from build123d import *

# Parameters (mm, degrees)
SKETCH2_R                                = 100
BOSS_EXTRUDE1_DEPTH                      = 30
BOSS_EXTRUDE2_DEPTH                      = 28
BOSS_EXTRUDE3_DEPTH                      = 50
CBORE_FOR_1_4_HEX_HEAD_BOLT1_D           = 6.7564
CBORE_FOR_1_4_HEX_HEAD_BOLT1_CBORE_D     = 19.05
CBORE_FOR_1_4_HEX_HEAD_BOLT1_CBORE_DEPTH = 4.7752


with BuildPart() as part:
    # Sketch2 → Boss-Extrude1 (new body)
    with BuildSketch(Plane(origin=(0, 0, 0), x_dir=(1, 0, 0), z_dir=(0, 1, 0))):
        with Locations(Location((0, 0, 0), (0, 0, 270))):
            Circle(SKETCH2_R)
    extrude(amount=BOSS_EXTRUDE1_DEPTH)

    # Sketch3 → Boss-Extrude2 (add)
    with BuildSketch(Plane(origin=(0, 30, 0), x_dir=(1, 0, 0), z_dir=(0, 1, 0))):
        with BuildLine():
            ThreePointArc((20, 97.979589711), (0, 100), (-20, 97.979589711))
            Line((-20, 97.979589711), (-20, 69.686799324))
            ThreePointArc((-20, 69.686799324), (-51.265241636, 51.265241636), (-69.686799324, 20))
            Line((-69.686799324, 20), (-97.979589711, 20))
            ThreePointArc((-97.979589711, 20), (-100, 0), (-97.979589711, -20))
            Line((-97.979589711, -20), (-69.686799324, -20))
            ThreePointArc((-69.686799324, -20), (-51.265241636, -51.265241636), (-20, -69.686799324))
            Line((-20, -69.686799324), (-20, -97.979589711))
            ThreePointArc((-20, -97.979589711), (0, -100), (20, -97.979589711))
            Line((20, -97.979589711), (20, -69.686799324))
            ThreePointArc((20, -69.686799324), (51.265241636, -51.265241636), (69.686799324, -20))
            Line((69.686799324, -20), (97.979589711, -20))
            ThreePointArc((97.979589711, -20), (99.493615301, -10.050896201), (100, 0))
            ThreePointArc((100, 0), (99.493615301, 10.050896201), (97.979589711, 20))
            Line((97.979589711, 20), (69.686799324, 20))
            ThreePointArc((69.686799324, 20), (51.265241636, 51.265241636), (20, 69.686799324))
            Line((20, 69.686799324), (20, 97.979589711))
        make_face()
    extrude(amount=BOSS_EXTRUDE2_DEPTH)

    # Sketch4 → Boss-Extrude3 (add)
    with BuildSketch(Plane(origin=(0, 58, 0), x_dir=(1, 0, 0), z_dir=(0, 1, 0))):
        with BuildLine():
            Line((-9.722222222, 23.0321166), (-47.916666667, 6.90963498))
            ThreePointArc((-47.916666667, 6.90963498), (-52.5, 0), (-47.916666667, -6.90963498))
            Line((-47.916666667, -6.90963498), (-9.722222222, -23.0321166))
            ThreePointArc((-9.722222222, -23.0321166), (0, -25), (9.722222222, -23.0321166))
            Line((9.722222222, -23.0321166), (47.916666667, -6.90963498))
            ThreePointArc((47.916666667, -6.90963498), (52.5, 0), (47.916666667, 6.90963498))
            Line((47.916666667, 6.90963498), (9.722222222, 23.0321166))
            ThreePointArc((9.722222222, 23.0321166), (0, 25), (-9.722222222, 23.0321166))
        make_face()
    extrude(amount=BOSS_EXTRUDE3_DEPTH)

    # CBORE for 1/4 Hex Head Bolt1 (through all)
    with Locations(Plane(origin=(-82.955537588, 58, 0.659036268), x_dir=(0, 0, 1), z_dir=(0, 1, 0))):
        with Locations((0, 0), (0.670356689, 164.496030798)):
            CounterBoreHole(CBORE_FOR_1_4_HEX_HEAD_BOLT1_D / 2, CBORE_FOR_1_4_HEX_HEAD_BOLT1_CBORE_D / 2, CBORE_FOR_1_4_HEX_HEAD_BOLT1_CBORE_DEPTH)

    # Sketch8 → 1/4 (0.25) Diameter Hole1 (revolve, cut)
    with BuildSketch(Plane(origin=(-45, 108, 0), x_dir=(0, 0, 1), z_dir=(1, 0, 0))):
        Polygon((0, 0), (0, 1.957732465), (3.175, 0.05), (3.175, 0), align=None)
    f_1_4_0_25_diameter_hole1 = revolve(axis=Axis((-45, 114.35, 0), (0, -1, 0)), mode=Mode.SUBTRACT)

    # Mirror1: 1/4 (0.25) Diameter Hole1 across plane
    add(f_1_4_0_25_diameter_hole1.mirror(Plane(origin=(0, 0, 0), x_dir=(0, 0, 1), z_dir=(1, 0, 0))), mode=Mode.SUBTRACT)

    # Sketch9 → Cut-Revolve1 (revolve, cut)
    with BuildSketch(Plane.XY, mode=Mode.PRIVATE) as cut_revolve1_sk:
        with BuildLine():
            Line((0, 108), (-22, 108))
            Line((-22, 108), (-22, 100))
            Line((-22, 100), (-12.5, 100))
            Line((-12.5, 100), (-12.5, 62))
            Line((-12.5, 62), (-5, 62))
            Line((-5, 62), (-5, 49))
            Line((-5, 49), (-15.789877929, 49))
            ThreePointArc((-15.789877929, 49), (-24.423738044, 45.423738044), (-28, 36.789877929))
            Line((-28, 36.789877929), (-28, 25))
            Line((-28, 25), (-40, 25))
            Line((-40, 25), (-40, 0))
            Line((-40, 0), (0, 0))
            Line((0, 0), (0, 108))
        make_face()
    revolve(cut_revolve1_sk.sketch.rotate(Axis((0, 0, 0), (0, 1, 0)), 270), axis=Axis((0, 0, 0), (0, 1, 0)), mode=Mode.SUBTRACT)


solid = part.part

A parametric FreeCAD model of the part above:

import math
import FreeCAD as App
import Part
import Sketcher
from FreeCAD import Vector
Q = App.Units.Quantity


def add_polygon(sketch, points):
    """Adds a closed chain of lines whose ends are joined by coincident constraints."""
    first, n = sketch.GeometryCount, len(points)
    for a, b in zip(points, points[1:] + points[:1]):
        sketch.addGeometry(Part.LineSegment(App.Vector(*a, 0), App.Vector(*b, 0)), False)
    for i in range(n):
        sketch.addConstraint(Sketcher.Constraint("Coincident", first + i, 2, first + (i + 1) % n, 1))

doc = App.newDocument("Part")
body = doc.addObject("PartDesign::Body", "Body")

sketch1 = doc.addObject("Sketcher::SketchObject", "Sketch")
body.addObject(sketch1)
sketch1.AttachmentSupport = (doc.XZ_Plane, [""])
sketch1.MapMode = "FlatFace"
sketch1.addGeometry(Part.Circle(Vector(0, 0, 0), Vector(0, 0, 1), 100), False)
sketch1.addConstraint([
    Sketcher.Constraint("Coincident", 0, 3, -1, 1),
    Sketcher.Constraint("Diameter", 0, 200.0),
])
pad1 = doc.addObject("PartDesign::Pad", "Pad")
body.addObject(pad1)
pad1.Profile = sketch1
pad1.Length = 30
pad1.Reversed = True

sketch2 = doc.addObject("Sketcher::SketchObject", "Sketch001")
body.addObject(sketch2)
sketch2.AttachmentSupport = (doc.XZ_Plane, [""])
sketch2.MapMode = "FlatFace"
sketch2.AttachmentOffset = App.Placement(Vector(0, 0, -30), App.Rotation())
sketch2.addGeometry([
    Part.ArcOfCircle(Part.Circle(Vector(0, 0, 0), Vector(0, 0, 1), 100), math.radians(-102), math.radians(-78)),
    Part.LineSegment(Vector(-20, -98, 0), Vector(-20, -70, 0)),
    Part.ArcOfCircle(Part.Circle(Vector(0, 0, 0), Vector(0, 0, 1), 73), math.radians(-164), math.radians(-106)),
    Part.LineSegment(Vector(-70, -20, 0), Vector(-98, -20, 0)),
    Part.ArcOfCircle(Part.Circle(Vector(0, 0, 0), Vector(0, 0, 1), 100), math.radians(168), math.radians(192)),
    Part.LineSegment(Vector(-98, 20, 0), Vector(-70, 20, 0)),
    Part.ArcOfCircle(Part.Circle(Vector(0, 0, 0), Vector(0, 0, 1), 73), math.radians(106), math.radians(164)),
    Part.LineSegment(Vector(-20, 70, 0), Vector(-20, 98, 0)),
    Part.ArcOfCircle(Part.Circle(Vector(0, 0, 0), Vector(0, 0, 1), 100), math.radians(78), math.radians(102)),
    Part.LineSegment(Vector(20, 98, 0), Vector(20, 70, 0)),
    Part.ArcOfCircle(Part.Circle(Vector(0, 0, 0), Vector(0, 0, 1), 73), math.radians(16), math.radians(74)),
    Part.LineSegment(Vector(70, 20, 0), Vector(98, 20, 0)),
    Part.ArcOfCircle(Part.Circle(Vector(0, 0, 0), Vector(0, 0, 1), 100), math.radians(0), math.radians(11.54)),
    Part.ArcOfCircle(Part.Circle(Vector(0, 0, 0), Vector(0, 0, 1), 100), math.radians(-11.54), math.radians(0)),
    Part.LineSegment(Vector(98, -20, 0), Vector(70, -20, 0)),
    Part.ArcOfCircle(Part.Circle(Vector(0, 0, 0), Vector(0, 0, 1), 73), math.radians(-74), math.radians(-16)),
    Part.LineSegment(Vector(20, -70, 0), Vector(20, -98, 0)),
], False)
sketch2.addConstraint([
    Sketcher.Constraint("Coincident", 0, 1, 1, 1),
    Sketcher.Constraint("Coincident", 1, 2, 2, 2),
    Sketcher.Constraint("Coincident", 2, 1, 3, 1),
    Sketcher.Constraint("Coincident", 3, 2, 4, 2),
    Sketcher.Constraint("Coincident", 4, 1, 5, 1),
    Sketcher.Constraint("Coincident", 5, 2, 6, 2),
    Sketcher.Constraint("Coincident", 6, 1, 7, 1),
    Sketcher.Constraint("Coincident", 7, 2, 8, 2),
    Sketcher.Constraint("Coincident", 8, 1, 9, 1),
    Sketcher.Constraint("Coincident", 9, 2, 10, 2),
    Sketcher.Constraint("Coincident", 10, 1, 11, 1),
    Sketcher.Constraint("Coincident", 11, 2, 12, 2),
    Sketcher.Constraint("Tangent", 12, 1, 13, 2),
    Sketcher.Constraint("Coincident", 13, 1, 14, 1),
    Sketcher.Constraint("Coincident", 14, 2, 15, 2),
    Sketcher.Constraint("Coincident", 15, 1, 16, 1),
    Sketcher.Constraint("Coincident", 16, 2, 0, 2),
    Sketcher.Constraint("Vertical", 1),
    Sketcher.Constraint("Horizontal", 3),
    Sketcher.Constraint("Horizontal", 5),
    Sketcher.Constraint("Vertical", 7),
    Sketcher.Constraint("Vertical", 9),
    Sketcher.Constraint("Horizontal", 11),
    Sketcher.Constraint("Horizontal", 14),
    Sketcher.Constraint("Vertical", 16),
    Sketcher.Constraint("Coincident", 0, 3, -1, 1),
    Sketcher.Constraint("Coincident", 2, 3, -1, 1),
    Sketcher.Constraint("Coincident", 4, 3, -1, 1),
    Sketcher.Constraint("Coincident", 6, 3, -1, 1),
    Sketcher.Constraint("Coincident", 8, 3, -1, 1),
    Sketcher.Constraint("Coincident", 10, 3, -1, 1),
    Sketcher.Constraint("Coincident", 12, 3, -1, 1),
    Sketcher.Constraint("Coincident", 15, 3, -1, 1),
    Sketcher.Constraint("Equal", 0, 4),
    Sketcher.Constraint("Equal", 2, 6),
    Sketcher.Constraint("Equal", 4, 8),
    Sketcher.Constraint("Equal", 6, 10),
    Sketcher.Constraint("Equal", 8, 12),
    Sketcher.Constraint("Equal", 12, 13),
    Sketcher.Constraint("Equal", 10, 15),
    Sketcher.Constraint("PointOnObject", 12, 1, -1),
    Sketcher.Constraint("Horizontal", 7, 2, 8, 1),
    Sketcher.Constraint("Horizontal", 5, 2, 10, 1),
    Sketcher.Constraint("Horizontal", 3, 2, 13, 1),
    Sketcher.Constraint("Horizontal", 1, 2, 15, 1),
    Sketcher.Constraint("Vertical", 3, 2, 4, 1),
    Sketcher.Constraint("Vertical", 1, 2, 6, 1),
    Sketcher.Constraint("Equal", 14, 1),
    Sketcher.Constraint("Radius", 0, 100.0),
    Sketcher.Constraint("Radius", 2, 72.5),
    Sketcher.Constraint("DistanceX", 0, 1, -1, 1, 20.0),
])
pad2 = doc.addObject("PartDesign::Pad", "Pad001")
body.addObject(pad2)
pad2.Profile = sketch2
pad2.Length = 28
pad2.Reversed = True

sketch3 = doc.addObject("Sketcher::SketchObject", "Sketch002")
body.addObject(sketch3)
sketch3.AttachmentSupport = (doc.XZ_Plane, [""])
sketch3.MapMode = "FlatFace"
sketch3.AttachmentOffset = App.Placement(Vector(0, 0, -58), App.Rotation())
sketch3.addGeometry([
    Part.LineSegment(Vector(-10, -23, 0), Vector(-48, -7, 0)),
    Part.ArcOfCircle(Part.Circle(Vector(-45, 0, 0), Vector(0, 0, 1), 8), math.radians(113), math.radians(247)),
    Part.LineSegment(Vector(-48, 7, 0), Vector(-10, 23, 0)),
    Part.ArcOfCircle(Part.Circle(Vector(0, 0, 0), Vector(0, 0, 1), 25), math.radians(67), math.radians(113)),
    Part.LineSegment(Vector(10, 23, 0), Vector(48, 7, 0)),
    Part.ArcOfCircle(Part.Circle(Vector(45, 0, 0), Vector(0, 0, 1), 8), math.radians(-67), math.radians(67)),
    Part.LineSegment(Vector(48, -7, 0), Vector(10, -23, 0)),
    Part.ArcOfCircle(Part.Circle(Vector(0, 0, 0), Vector(0, 0, 1), 25), math.radians(-113), math.radians(-67)),
], False)
sketch3.addConstraint([
    Sketcher.Constraint("Tangent", 0, 2, 1, 2),
    Sketcher.Constraint("Tangent", 1, 1, 2, 1),
    Sketcher.Constraint("Tangent", 2, 2, 3, 2),
    Sketcher.Constraint("Tangent", 3, 1, 4, 1),
    Sketcher.Constraint("Tangent", 4, 2, 5, 2),
    Sketcher.Constraint("Tangent", 5, 1, 6, 1),
    Sketcher.Constraint("Tangent", 6, 2, 7, 2),
    Sketcher.Constraint("Tangent", 7, 1, 0, 1),
    Sketcher.Constraint("Coincident", 3, 3, -1, 1),
    Sketcher.Constraint("Coincident", 7, 3, -1, 1),
    Sketcher.Constraint("Equal", 1, 5),
    Sketcher.Constraint("Equal", 3, 7),
    Sketcher.Constraint("Symmetric", 1, 3, 5, 3, -1, 1),
    Sketcher.Constraint("PointOnObject", 1, 3, -1),
    Sketcher.Constraint("Radius", 3, 25.0),
    Sketcher.Constraint("Radius", 1, 7.5),
    Sketcher.Constraint("DistanceX", 1, 3, -1, 1, 45.0),
])
pad3 = doc.addObject("PartDesign::Pad", "Pad002")
body.addObject(pad3)
pad3.Profile = sketch3
pad3.Length = 50
pad3.Reversed = True

sketch4 = doc.addObject("Sketcher::SketchObject", "Sketch003")
body.addObject(sketch4)
sketch4.AttachmentSupport = (doc.XZ_Plane, [""])
sketch4.MapMode = "FlatFace"
sketch4.AttachmentOffset = App.Placement(Vector(0, 0, -58), App.Rotation())
sketch4.addGeometry([
    Part.Circle(Vector(-83, 0.7, 0), Vector(0, 0, 1), 3.4),
    Part.Circle(Vector(81.5, 1.3, 0), Vector(0, 0, 1), 3.4),
], False)
sketch4.addConstraint([
    Sketcher.Constraint("Equal", 0, 1),
    Sketcher.Constraint("Diameter", 0, 6.7564),
    Sketcher.Constraint("DistanceX", 0, 3, 1, 3, 164.496031),
    Sketcher.Constraint("DistanceX", 0, 3, -1, 1, 82.955538),
    Sketcher.Constraint("DistanceY", -1, 1, 0, 3, 0.659036),
    Sketcher.Constraint("DistanceY", -1, 1, 1, 3, 1.329393),
])
doc.recompute()
hole = doc.addObject("PartDesign::Hole", "Hole")
body.addObject(hole)
hole.Profile = sketch4
hole.ThreadType = "None"
hole.Diameter = 6.7564
hole.DepthType = "ThroughAll"
hole.HoleCutType = "Counterbore"
hole.HoleCutDiameter = 19.05
hole.HoleCutDepth = 4.7752
hole.Reversed = True

sketch5 = doc.addObject("Sketcher::SketchObject", "Sketch004")
body.addObject(sketch5)
sketch5.AttachmentSupport = (doc.YZ_Plane, [""])
sketch5.MapMode = "FlatFace"
sketch5.AttachmentOffset = App.Placement(Vector(0, 0, -45), App.Rotation())
add_polygon(sketch5, [(106.042268, 0), (108, 0), (108, 3.175), (107.95, 3.175)])
sketch5.addConstraint([
    Sketcher.Constraint("Horizontal", 0),
    Sketcher.Constraint("Vertical", 1),
    Sketcher.Constraint("Horizontal", 2),
    Sketcher.Constraint("PointOnObject", 0, 2, -1),
    Sketcher.Constraint("Angle", 3, Q("-121 deg")),
    Sketcher.Constraint("DistanceX", -1, 1, 0, 2, 108.0),
    Sketcher.Constraint("DistanceX", 2, 2, 2, 1, 0.05),
    Sketcher.Constraint("DistanceY", 1, 1, 1, 2, 3.175),
])
groove = doc.addObject("PartDesign::Groove", "Groove")
body.addObject(groove)
groove.Profile = sketch5
groove.ReferenceAxis = (sketch5, ["H_Axis"])
groove.Angle = 360
doc.recompute()

mirrored = doc.addObject("PartDesign::Mirrored", "Mirrored")
body.addObject(mirrored)
mirrored.Originals = [groove]
mirrored.MirrorPlane = (doc.YZ_Plane, [""])
body.Tip = mirrored

sketch6 = doc.addObject("Sketcher::SketchObject", "Sketch005")
body.addObject(sketch6)
sketch6.AttachmentSupport = (doc.XY_Plane, [""])
sketch6.MapMode = "FlatFace"
sketch6.addGeometry([
    Part.LineSegment(Vector(0, 108, 0), Vector(-22, 108, 0)),
    Part.LineSegment(Vector(-22, 108, 0), Vector(-22, 100, 0)),
    Part.LineSegment(Vector(-22, 100, 0), Vector(-12, 100, 0)),
    Part.LineSegment(Vector(-12, 100, 0), Vector(-12, 62, 0)),
    Part.LineSegment(Vector(-12, 62, 0), Vector(-5, 62, 0)),
    Part.LineSegment(Vector(-5, 62, 0), Vector(-5, 49, 0)),
    Part.LineSegment(Vector(-5, 49, 0), Vector(-16, 49, 0)),
    Part.ArcOfCircle(Part.Circle(Vector(-16, 37, 0), Vector(0, 0, 1), 12), math.radians(90), math.radians(180)),
    Part.LineSegment(Vector(-28, 37, 0), Vector(-28, 25, 0)),
    Part.LineSegment(Vector(-28, 25, 0), Vector(-40, 25, 0)),
    Part.LineSegment(Vector(-40, 25, 0), Vector(-40, 0, 0)),
    Part.LineSegment(Vector(-40, 0, 0), Vector(0, 0, 0)),
    Part.LineSegment(Vector(0, 0, 0), Vector(0, 108, 0)),
], False)
sketch6.addConstraint([
    Sketcher.Constraint("Coincident", 0, 2, 1, 1),
    Sketcher.Constraint("Coincident", 1, 2, 2, 1),
    Sketcher.Constraint("Coincident", 2, 2, 3, 1),
    Sketcher.Constraint("Coincident", 3, 2, 4, 1),
    Sketcher.Constraint("Coincident", 4, 2, 5, 1),
    Sketcher.Constraint("Coincident", 5, 2, 6, 1),
    Sketcher.Constraint("Tangent", 6, 2, 7, 1),
    Sketcher.Constraint("Tangent", 7, 2, 8, 1),
    Sketcher.Constraint("Coincident", 8, 2, 9, 1),
    Sketcher.Constraint("Coincident", 9, 2, 10, 1),
    Sketcher.Constraint("Coincident", 10, 2, 11, 1),
    Sketcher.Constraint("Coincident", 11, 2, 12, 1),
    Sketcher.Constraint("Coincident", 12, 2, 0, 1),
    Sketcher.Constraint("Horizontal", 0),
    Sketcher.Constraint("Vertical", 1),
    Sketcher.Constraint("Horizontal", 2),
    Sketcher.Constraint("Vertical", 3),
    Sketcher.Constraint("Horizontal", 4),
    Sketcher.Constraint("Vertical", 5),
    Sketcher.Constraint("Horizontal", 6),
    Sketcher.Constraint("Vertical", 8),
    Sketcher.Constraint("Horizontal", 9),
    Sketcher.Constraint("Vertical", 10),
    Sketcher.Constraint("Horizontal", 11),
    Sketcher.Constraint("Vertical", 12),
    Sketcher.Constraint("Coincident", 11, 2, -1, 1),
    Sketcher.Constraint("DistanceX", 0, 2, 0, 1, 22.0),
    Sketcher.Constraint("DistanceX", 9, 2, 9, 1, 12.0),
    Sketcher.Constraint("DistanceX", 11, 1, 11, 2, 40.0),
    Sketcher.Constraint("DistanceY", 1, 2, 1, 1, 8.0),
    Sketcher.Constraint("DistanceY", 3, 2, 3, 1, 38.0),
    Sketcher.Constraint("DistanceY", 5, 2, 5, 1, 13.0),
    Sketcher.Constraint("DistanceY", 10, 2, 10, 1, 25.0),
    Sketcher.Constraint("DistanceY", 12, 1, 12, 2, 108.0),
    Sketcher.Constraint("DistanceX", 2, 1, 2, 2, 9.5),
    Sketcher.Constraint("DistanceX", 4, 1, 4, 2, 7.5),
    Sketcher.Constraint("Radius", 7, 12.210122),
])
groove2 = doc.addObject("PartDesign::Groove", "Groove001")
body.addObject(groove2)
groove2.Profile = sketch6
groove2.ReferenceAxis = (sketch6, ["V_Axis"])
groove2.Angle = 360

doc.recompute()
